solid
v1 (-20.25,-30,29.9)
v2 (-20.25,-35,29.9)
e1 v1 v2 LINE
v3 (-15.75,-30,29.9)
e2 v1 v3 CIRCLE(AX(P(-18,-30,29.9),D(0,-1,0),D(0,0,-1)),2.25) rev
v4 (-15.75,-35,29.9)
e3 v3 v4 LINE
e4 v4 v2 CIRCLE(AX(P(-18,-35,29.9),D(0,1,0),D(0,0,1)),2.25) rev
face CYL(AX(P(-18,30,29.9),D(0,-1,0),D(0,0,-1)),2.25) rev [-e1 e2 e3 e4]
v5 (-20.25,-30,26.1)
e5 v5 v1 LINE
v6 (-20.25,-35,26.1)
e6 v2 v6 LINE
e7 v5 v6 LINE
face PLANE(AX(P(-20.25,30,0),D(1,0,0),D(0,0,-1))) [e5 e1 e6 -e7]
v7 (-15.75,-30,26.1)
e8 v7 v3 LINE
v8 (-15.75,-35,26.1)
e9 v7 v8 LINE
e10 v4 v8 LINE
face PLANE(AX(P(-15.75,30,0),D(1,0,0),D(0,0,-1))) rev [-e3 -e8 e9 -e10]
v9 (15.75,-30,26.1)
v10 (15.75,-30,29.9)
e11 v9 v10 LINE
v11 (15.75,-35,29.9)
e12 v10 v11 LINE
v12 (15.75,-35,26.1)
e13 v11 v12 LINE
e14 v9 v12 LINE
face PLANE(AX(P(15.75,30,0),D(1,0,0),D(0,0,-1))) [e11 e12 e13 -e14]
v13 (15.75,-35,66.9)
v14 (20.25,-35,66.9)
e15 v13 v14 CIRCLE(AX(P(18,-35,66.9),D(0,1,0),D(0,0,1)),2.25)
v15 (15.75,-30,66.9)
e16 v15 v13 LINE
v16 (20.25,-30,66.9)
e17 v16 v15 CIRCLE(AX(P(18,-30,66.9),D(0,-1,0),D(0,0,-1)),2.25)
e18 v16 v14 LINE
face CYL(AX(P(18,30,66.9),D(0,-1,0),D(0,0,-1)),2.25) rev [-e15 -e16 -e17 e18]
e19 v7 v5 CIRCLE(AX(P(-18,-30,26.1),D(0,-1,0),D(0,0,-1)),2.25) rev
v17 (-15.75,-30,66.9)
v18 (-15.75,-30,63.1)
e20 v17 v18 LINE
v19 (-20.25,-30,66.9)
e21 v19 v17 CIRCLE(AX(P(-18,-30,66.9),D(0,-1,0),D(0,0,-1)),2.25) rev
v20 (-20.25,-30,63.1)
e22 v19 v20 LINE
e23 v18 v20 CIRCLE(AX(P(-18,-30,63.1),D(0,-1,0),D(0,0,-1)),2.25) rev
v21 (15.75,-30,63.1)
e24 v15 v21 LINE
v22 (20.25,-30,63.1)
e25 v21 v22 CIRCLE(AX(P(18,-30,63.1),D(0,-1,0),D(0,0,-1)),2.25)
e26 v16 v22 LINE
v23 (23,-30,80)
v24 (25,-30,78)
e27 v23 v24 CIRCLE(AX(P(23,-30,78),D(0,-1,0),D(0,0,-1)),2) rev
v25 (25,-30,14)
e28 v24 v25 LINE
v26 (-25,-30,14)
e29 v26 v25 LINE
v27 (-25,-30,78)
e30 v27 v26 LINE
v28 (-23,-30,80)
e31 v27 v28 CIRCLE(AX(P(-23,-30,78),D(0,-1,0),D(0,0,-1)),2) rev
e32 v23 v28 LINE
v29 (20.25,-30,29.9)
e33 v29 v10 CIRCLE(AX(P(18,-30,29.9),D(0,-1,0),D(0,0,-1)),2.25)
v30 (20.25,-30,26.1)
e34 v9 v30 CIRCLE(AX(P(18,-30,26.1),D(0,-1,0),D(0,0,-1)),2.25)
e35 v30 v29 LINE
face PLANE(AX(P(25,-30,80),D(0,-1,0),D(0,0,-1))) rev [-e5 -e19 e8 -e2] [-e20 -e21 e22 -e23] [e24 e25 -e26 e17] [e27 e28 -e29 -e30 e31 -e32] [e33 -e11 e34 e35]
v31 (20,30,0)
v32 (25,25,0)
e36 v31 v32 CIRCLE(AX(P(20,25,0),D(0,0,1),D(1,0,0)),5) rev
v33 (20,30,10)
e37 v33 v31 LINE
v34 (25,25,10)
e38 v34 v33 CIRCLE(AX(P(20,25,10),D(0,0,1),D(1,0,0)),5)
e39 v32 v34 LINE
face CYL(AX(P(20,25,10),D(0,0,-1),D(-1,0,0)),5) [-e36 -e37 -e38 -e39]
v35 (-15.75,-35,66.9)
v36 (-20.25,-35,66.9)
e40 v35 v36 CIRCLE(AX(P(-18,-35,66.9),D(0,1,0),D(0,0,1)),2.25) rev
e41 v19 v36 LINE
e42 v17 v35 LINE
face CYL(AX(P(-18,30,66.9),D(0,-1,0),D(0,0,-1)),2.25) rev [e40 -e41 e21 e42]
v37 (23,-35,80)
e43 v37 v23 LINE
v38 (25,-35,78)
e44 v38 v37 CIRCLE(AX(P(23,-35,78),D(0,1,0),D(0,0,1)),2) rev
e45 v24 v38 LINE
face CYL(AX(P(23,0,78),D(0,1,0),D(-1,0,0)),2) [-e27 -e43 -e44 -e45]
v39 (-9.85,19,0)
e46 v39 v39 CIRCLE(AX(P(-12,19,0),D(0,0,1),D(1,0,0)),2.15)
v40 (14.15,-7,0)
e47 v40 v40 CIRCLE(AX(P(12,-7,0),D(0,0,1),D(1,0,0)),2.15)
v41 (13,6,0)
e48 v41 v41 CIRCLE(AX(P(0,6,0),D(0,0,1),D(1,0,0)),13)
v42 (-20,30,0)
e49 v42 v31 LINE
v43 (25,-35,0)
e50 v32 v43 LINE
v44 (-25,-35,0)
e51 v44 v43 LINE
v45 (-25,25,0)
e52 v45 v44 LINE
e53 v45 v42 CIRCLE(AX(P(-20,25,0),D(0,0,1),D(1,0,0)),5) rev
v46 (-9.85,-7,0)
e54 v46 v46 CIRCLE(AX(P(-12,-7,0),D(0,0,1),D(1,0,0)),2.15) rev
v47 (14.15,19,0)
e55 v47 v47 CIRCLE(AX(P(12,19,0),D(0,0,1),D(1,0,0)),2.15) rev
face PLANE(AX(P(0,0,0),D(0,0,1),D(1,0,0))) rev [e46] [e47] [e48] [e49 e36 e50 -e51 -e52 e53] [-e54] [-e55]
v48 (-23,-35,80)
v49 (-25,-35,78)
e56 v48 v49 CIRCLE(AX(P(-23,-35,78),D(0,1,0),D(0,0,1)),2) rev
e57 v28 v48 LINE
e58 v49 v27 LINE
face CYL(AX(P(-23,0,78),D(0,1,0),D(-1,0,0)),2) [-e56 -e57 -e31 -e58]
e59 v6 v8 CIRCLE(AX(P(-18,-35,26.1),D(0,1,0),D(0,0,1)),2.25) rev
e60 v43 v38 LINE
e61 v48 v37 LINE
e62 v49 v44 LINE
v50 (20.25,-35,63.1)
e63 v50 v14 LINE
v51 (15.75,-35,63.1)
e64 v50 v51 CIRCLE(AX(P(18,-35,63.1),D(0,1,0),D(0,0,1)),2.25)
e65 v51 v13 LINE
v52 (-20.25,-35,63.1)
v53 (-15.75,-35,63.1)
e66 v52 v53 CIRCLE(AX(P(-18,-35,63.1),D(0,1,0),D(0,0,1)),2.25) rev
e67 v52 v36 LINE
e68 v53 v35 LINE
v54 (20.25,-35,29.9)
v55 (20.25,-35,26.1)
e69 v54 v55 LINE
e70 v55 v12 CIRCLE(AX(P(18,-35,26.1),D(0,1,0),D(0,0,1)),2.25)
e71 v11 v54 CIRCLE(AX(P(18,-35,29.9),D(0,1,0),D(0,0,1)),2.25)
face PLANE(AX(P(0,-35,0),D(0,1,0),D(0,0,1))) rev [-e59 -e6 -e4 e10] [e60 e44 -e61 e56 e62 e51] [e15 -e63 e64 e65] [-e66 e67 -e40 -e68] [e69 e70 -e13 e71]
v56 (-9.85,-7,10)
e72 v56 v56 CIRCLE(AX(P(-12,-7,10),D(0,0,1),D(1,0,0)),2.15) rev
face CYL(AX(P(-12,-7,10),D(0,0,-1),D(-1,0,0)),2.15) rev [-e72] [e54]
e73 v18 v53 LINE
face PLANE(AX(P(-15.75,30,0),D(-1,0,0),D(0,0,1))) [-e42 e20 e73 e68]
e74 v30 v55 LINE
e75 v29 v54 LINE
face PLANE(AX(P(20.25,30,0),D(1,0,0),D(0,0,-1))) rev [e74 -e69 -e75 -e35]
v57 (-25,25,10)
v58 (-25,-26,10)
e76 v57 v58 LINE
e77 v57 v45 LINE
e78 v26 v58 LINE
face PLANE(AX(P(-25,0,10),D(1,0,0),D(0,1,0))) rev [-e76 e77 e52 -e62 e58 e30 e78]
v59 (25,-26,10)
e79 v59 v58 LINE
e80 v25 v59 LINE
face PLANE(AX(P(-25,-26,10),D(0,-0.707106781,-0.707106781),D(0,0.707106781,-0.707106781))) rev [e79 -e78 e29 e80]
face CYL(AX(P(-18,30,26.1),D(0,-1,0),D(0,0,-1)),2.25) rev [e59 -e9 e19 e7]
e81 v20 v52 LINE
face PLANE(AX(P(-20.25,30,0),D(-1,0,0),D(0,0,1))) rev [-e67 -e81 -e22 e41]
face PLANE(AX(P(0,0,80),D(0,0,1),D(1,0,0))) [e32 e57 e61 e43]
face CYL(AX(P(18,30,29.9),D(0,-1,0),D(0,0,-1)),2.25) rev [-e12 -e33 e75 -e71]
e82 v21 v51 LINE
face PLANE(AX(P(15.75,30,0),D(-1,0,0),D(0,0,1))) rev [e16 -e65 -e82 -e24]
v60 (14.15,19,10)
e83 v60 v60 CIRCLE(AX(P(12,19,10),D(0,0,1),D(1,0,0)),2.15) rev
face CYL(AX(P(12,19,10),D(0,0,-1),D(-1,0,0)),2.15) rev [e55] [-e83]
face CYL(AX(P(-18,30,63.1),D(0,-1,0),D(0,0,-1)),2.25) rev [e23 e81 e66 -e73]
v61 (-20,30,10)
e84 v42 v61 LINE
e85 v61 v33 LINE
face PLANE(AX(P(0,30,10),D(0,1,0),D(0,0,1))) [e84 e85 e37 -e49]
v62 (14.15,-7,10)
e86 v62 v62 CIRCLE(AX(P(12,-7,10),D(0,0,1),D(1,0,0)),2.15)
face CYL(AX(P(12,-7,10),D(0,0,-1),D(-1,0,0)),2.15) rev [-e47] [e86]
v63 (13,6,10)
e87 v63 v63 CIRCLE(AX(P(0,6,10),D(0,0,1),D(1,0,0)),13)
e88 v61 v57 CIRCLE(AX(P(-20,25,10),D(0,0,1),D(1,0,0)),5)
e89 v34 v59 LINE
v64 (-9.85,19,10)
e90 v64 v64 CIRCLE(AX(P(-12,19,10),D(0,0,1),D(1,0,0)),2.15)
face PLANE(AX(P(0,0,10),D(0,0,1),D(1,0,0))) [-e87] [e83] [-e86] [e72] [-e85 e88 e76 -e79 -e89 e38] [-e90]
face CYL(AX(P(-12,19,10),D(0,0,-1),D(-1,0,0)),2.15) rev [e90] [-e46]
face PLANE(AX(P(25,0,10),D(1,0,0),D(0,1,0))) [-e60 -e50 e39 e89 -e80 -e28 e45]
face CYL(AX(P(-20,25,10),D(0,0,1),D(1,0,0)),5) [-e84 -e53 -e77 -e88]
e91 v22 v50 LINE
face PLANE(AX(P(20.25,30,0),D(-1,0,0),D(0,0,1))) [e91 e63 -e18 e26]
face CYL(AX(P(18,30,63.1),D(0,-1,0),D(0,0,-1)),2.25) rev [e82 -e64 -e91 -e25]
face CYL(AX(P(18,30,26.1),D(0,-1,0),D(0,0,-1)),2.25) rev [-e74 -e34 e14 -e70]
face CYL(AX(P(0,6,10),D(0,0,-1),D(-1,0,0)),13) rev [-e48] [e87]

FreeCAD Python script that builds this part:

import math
import FreeCAD as App
import Part
import Sketcher

V = App.Vector


def edges_at(feature, points):
    """Names of the edges that pass closest to the given points."""
    edges = feature.Shape.Edges
    near = lambda p: min(range(len(edges)), key=lambda i: edges[i].distToShape(Part.Vertex(*p))[0])
    return sorted({f"Edge{near(p) + 1}" for p in points})


def add_polygon(sketch, points):
    """Adds a closed chain of lines whose ends are joined by coincident constraints."""
    first, n = sketch.GeometryCount, len(points)
    for a, b in zip(points, points[1:] + points[:1]):
        sketch.addGeometry(Part.LineSegment(App.Vector(*a, 0), App.Vector(*b, 0)), False)
    for i in range(n):
        sketch.addConstraint(Sketcher.Constraint("Coincident", first + i, 2, first + (i + 1) % n, 1))

doc = App.newDocument("Part")
params = doc.addObject("Spreadsheet::Sheet", "Params")
for row, (alias, value) in enumerate([
    ("sketch1_radius", "13 mm"),
    ("sketch1_diameter", "4.3 mm"),
    ("sketch1_width", "50 mm"),
    ("sketch1_height", "60 mm"),
    ("pad1_length", "10 mm"),
    ("sketch2_width", "50 mm"),
    ("sketch2_height", "10 mm"),
    ("pad2_length", "5 mm"),
    ("sketch3_width", "50 mm"),
    ("sketch3_height", "5 mm"),
    ("pad3_length", "70 mm"),
    ("sketch4_radius", "2.25 mm"),
    ("sketch4_height", "3.8 mm"),
    ("fillet_radius", "5 mm"),
    ("fillet2_radius", "2 mm"),
    ("sketch5_width", "4 mm"),
    ("pad4_length", "4 mm"),
    ("sketch6_width", "4 mm"),
    ("pad5_length", "46 mm"),
    ("sketch7_width", "4 mm"),
], start=1):
    params.set(f"A{row}", alias)
    params.set(f"B{row}", "=" + value)
    params.setAlias(f"B{row}", alias)

body = doc.addObject("PartDesign::Body", "Body")

# Sketch on XY plane
sketch1 = body.newObject("Sketcher::SketchObject", "Sketch")
sketch1.AttachmentSupport = (doc.getObject("XY_Plane"), [""])
sketch1.MapMode = "FlatFace"
add_polygon(sketch1, [(25, 30), (-25, 30), (-25, -30), (25, -30)])  # lines 0-3
sketch1.addGeometry(Part.ArcOfCircle(Part.Circle(V(0, 6, 0), V(0, 0, 1), 13), math.radians(0), math.radians(90)), False)  # 4
sketch1.addGeometry(Part.ArcOfCircle(Part.Circle(V(0, 6, 0), V(0, 0, 1), 13), math.radians(180), math.radians(360)), False)  # 5
sketch1.addGeometry(Part.ArcOfCircle(Part.Circle(V(0, 6, 0), V(0, 0, 1), 13), math.radians(90), math.radians(180)), False)  # 6
sketch1.addGeometry(Part.Circle(V(12, 19, 0), V(0, 0, 1), 2.15), False)  # 7
sketch1.addGeometry(Part.Circle(V(12, -7, 0), V(0, 0, 1), 2.15), False)  # 8
sketch1.addGeometry(Part.Circle(V(-12, -7, 0), V(0, 0, 1), 2.15), False)  # 9
sketch1.addGeometry(Part.Circle(V(-12, 19, 0), V(0, 0, 1), 2.15), False)  # 10
sketch1.addConstraint([
    Sketcher.Constraint("Tangent", 4, 1, 5, 2),
    Sketcher.Constraint("Tangent", 5, 1, 6, 2),
    Sketcher.Constraint("Tangent", 6, 1, 4, 2),
    Sketcher.Constraint("Horizontal", 0),
    Sketcher.Constraint("Vertical", 1),
    Sketcher.Constraint("Horizontal", 2),
    Sketcher.Constraint("Vertical", 3),
    Sketcher.Constraint("Equal", 7, 8),
    Sketcher.Constraint("Equal", 8, 9),
    Sketcher.Constraint("Equal", 9, 10),
    Sketcher.Constraint("Symmetric", 0, 2, 2, 2, -1, 1),
    Sketcher.Constraint("Symmetric", 8, 3, 9, 3, -2),
    Sketcher.Constraint("Symmetric", 7, 3, 10, 3, -2),
    Sketcher.Constraint("Symmetric", 4, 1, 5, 1, -2),
    Sketcher.Constraint("PointOnObject", 6, 1, -2),
    Sketcher.Constraint("Horizontal", 6, 3, 4, 1),
    Sketcher.Constraint("Horizontal", 10, 3, 6, 1),
    Sketcher.Constraint("Vertical", 7, 3, 8, 3),
    Sketcher.Constraint("Radius", 4, 13.0),
    Sketcher.Constraint("Diameter", 7, 4.3),
    Sketcher.Constraint("DistanceX", 0, 2, 0, 1, 50.0),
    Sketcher.Constraint("DistanceY", 1, 2, 1, 1, 60.0),
    Sketcher.Constraint("DistanceY", -1, 1, 4, 3, 6.0),
    Sketcher.Constraint("DistanceX", -1, 1, 7, 3, 12.0),
    Sketcher.Constraint("DistanceY", 8, 3, -1, 1, 7.0),
])
sketch1.setExpression("Constraints[22]", "Params.sketch1_radius")
sketch1.setExpression("Constraints[23]", "Params.sketch1_diameter")
sketch1.setExpression("Constraints[24]", "Params.sketch1_width")
sketch1.setExpression("Constraints[25]", "Params.sketch1_height")
pad1 = body.newObject("PartDesign::Pad", "Pad")
pad1.Profile = sketch1
pad1.setExpression("Length", "Params.pad1_length")

# Sketch on XZ plane
sketch2 = body.newObject("Sketcher::SketchObject", "Sketch001")
sketch2.AttachmentSupport = (doc.getObject("XZ_Plane"), [""])
sketch2.MapMode = "FlatFace"
sketch2.AttachmentOffset = App.Placement(V(0, 0, 30), App.Rotation())
add_polygon(sketch2, [(-25, 10), (-25, 0), (25, 0), (25, 10)])  # lines 0-3
sketch2.addConstraint([
    Sketcher.Constraint("Vertical", 0),
    Sketcher.Constraint("Horizontal", 1),
    Sketcher.Constraint("Vertical", 2),
    Sketcher.Constraint("Horizontal", 3),
    Sketcher.Constraint("Symmetric", 0, 2, 1, 2, -1, 1),
    Sketcher.Constraint("DistanceX", 1, 1, 1, 2, 50.0),
    Sketcher.Constraint("DistanceY", 0, 2, 0, 1, 10.0),
])
sketch2.setExpression("Constraints[9]", "Params.sketch2_width")
sketch2.setExpression("Constraints[10]", "Params.sketch2_height")
pad2 = body.newObject("PartDesign::Pad", "Pad001")
pad2.Profile = sketch2
pad2.setExpression("Length", "Params.pad2_length")

# Sketch on XY plane
sketch3 = body.newObject("Sketcher::SketchObject", "Sketch002")
sketch3.AttachmentSupport = (doc.getObject("XY_Plane"), [""])
sketch3.MapMode = "FlatFace"
sketch3.AttachmentOffset = App.Placement(V(0, 0, 10), App.Rotation())
add_polygon(sketch3, [(-25, -30), (-25, -35), (25, -35), (25, -30)])  # lines 0-3
sketch3.addConstraint([
    Sketcher.Constraint("Vertical", 0),
    Sketcher.Constraint("Horizontal", 1),
    Sketcher.Constraint("Vertical", 2),
    Sketcher.Constraint("Horizontal", 3),
    Sketcher.Constraint("DistanceX", 1, 1, 1, 2, 50.0),
    Sketcher.Constraint("DistanceY", 0, 2, 0, 1, 5.0),
    Sketcher.Constraint("DistanceX", 0, 2, -1, 1, 25.0),
    Sketcher.Constraint("DistanceY", 0, 2, -1, 1, 35.0),
])
sketch3.setExpression("Constraints[8]", "Params.sketch3_width")
sketch3.setExpression("Constraints[9]", "Params.sketch3_height")
pad3 = body.newObject("PartDesign::Pad", "Pad002")
pad3.Profile = sketch3
pad3.setExpression("Length", "Params.pad3_length")

# Sketch on XZ plane
sketch4 = body.newObject("Sketcher::SketchObject", "Sketch003")
sketch4.AttachmentSupport = (doc.getObject("XZ_Plane"), [""])
sketch4.MapMode = "FlatFace"
sketch4.AttachmentOffset = App.Placement(V(0, 0, 30), App.Rotation())
sketch4.addGeometry([
    Part.LineSegment(V(-20.25, 63.1, 0), V(-20.25, 66.9, 0)),  # 0
    Part.ArcOfCircle(Part.Circle(V(-18, 66.9, 0), V(0, 0, 1), 2.25), math.radians(0), math.radians(180)),  # 1
    Part.LineSegment(V(-15.75, 66.9, 0), V(-15.75, 63.1, 0)),  # 2
    Part.ArcOfCircle(Part.Circle(V(-18, 63.1, 0), V(0, 0, 1), 2.25), math.radians(180), math.radians(360)),  # 3
    Part.LineSegment(V(-15.75, 29.9, 0), V(-15.75, 26.1, 0)),  # 4
    Part.ArcOfCircle(Part.Circle(V(-18, 26.1, 0), V(0, 0, 1), 2.25), math.radians(180), math.radians(360)),  # 5
    Part.LineSegment(V(-20.25, 26.1, 0), V(-20.25, 29.9, 0)),  # 6
    Part.ArcOfCircle(Part.Circle(V(-18, 29.9, 0), V(0, 0, 1), 2.25), math.radians(0), math.radians(180)),  # 7
    Part.LineSegment(V(20.25, 66.9, 0), V(20.25, 63.1, 0)),  # 8
    Part.ArcOfCircle(Part.Circle(V(18, 63.1, 0), V(0, 0, 1), 2.25), math.radians(180), math.radians(360)),  # 9
    Part.LineSegment(V(15.75, 63.1, 0), V(15.75, 66.9, 0)),  # 10
    Part.ArcOfCircle(Part.Circle(V(18, 66.9, 0), V(0, 0, 1), 2.25), math.radians(0), math.radians(180)),  # 11
    Part.LineSegment(V(15.75, 26.1, 0), V(15.75, 29.9, 0)),  # 12
    Part.ArcOfCircle(Part.Circle(V(18, 29.9, 0), V(0, 0, 1), 2.25), math.radians(0), math.radians(180)),  # 13
    Part.LineSegment(V(20.25, 29.9, 0), V(20.25, 26.1, 0)),  # 14
    Part.ArcOfCircle(Part.Circle(V(18, 26.1, 0), V(0, 0, 1), 2.25), math.radians(180), math.radians(360)),  # 15
], False)
sketch4.addConstraint([
    Sketcher.Constraint("Tangent", 0, 2, 1, 2),
    Sketcher.Constraint("Tangent", 1, 1, 2, 1),
    Sketcher.Constraint("Tangent", 2, 2, 3, 2),
    Sketcher.Constraint("Tangent", 3, 1, 0, 1),
    Sketcher.Constraint("Tangent", 4, 2, 5, 2),
    Sketcher.Constraint("Tangent", 5, 1, 6, 1),
    Sketcher.Constraint("Tangent", 6, 2, 7, 2),
    Sketcher.Constraint("Tangent", 7, 1, 4, 1),
    Sketcher.Constraint("Tangent", 8, 2, 9, 2),
    Sketcher.Constraint("Tangent", 9, 1, 10, 1),
    Sketcher.Constraint("Tangent", 10, 2, 11, 2),
    Sketcher.Constraint("Tangent", 11, 1, 8, 1),
    Sketcher.Constraint("Tangent", 12, 2, 13, 2),
    Sketcher.Constraint("Tangent", 13, 1, 14, 1),
    Sketcher.Constraint("Tangent", 14, 2, 15, 2),
    Sketcher.Constraint("Tangent", 15, 1, 12, 1),
    Sketcher.Constraint("Vertical", 0),
    Sketcher.Constraint("Vertical", 2),
    Sketcher.Constraint("Vertical", 4),
    Sketcher.Constraint("Vertical", 6),
    Sketcher.Constraint("Vertical", 8),
    Sketcher.Constraint("Vertical", 10),
    Sketcher.Constraint("Vertical", 12),
    Sketcher.Constraint("Vertical", 14),
    Sketcher.Constraint("Equal", 3, 5),
    Sketcher.Constraint("Equal", 7, 9),
    Sketcher.Constraint("Equal", 11, 13),
    Sketcher.Constraint("Symmetric", 3, 3, 9, 3, -2),
    Sketcher.Constraint("Symmetric", 7, 3, 13, 3, -2),
    Sketcher.Constraint("Horizontal", 1, 3, 11, 3),
    Sketcher.Constraint("Horizontal", 5, 3, 15, 3),
    Sketcher.Constraint("Vertical", 3, 3, 5, 3),
    Sketcher.Constraint("Equal", 2, 4),
    Sketcher.Constraint("Radius", 1, 2.25),
    Sketcher.Constraint("DistanceY", 0, 1, 0, 2, 3.8),
    Sketcher.Constraint("DistanceX", 1, 3, -1, 1, 18.0),
    Sketcher.Constraint("DistanceY", 5, 3, 3, 3, 37.0),
    Sketcher.Constraint("DistanceY", -1, 1, 1, 3, 66.9),
])
sketch4.setExpression("Constraints[33]", "Params.sketch4_radius")
sketch4.setExpression("Constraints[34]", "Params.sketch4_height")
pocket1 = body.newObject("PartDesign::Pocket", "Pocket")
pocket1.Profile = sketch4
pocket1.Type = "ThroughAll"
pocket1.Midplane = True
doc.recompute()

fillet = body.newObject("PartDesign::Fillet", "Fillet")
fillet.Base = (pocket1, edges_at(pocket1, [(-25, 30, 5), (25, 30, 5)]))
fillet.setExpression("Radius", "Params.fillet_radius")
doc.recompute()

fillet2 = body.newObject("PartDesign::Fillet", "Fillet001")
fillet2.Base = (fillet, edges_at(fillet, [(25, -32.5, 80), (-25, -32.5, 80)]))
fillet2.setExpression("Radius", "Params.fillet2_radius")

# Sketch on XZ plane
sketch5 = body.newObject("Sketcher::SketchObject", "Sketch004")
sketch5.AttachmentSupport = (doc.getObject("XZ_Plane"), [""])
sketch5.MapMode = "FlatFace"
sketch5.AttachmentOffset = App.Placement(V(0, 0, 30), App.Rotation())
add_polygon(sketch5, [(21, 10), (21, 14), (25, 14), (25, 10)])  # lines 0-3
sketch5.addConstraint([
    Sketcher.Constraint("Vertical", 0),
    Sketcher.Constraint("Horizontal", 1),
    Sketcher.Constraint("Vertical", 2),
    Sketcher.Constraint("Horizontal", 3),
    Sketcher.Constraint("Equal", 3, 0),
    Sketcher.Constraint("DistanceX", 1, 1, 1, 2, 4.0),
    Sketcher.Constraint("DistanceX", -1, 1, 0, 2, 21.0),
    Sketcher.Constraint("DistanceY", -1, 1, 0, 2, 14.0),
])
sketch5.setExpression("Constraints[9]", "Params.sketch5_width")
pad4 = body.newObject("PartDesign::Pad", "Pad003")
pad4.Profile = sketch5
pad4.setExpression("Length", "Params.pad4_length")
pad4.Reversed = True

# Sketch on YZ plane
sketch6 = body.newObject("Sketcher::SketchObject", "Sketch005")
sketch6.AttachmentSupport = (doc.getObject("YZ_Plane"), [""])
sketch6.MapMode = "FlatFace"
sketch6.AttachmentOffset = App.Placement(V(0, 0, 21), App.Rotation())
add_polygon(sketch6, [(-26, 10), (-30, 10), (-30, 14), (-26, 14)])  # lines 0-3
sketch6.addConstraint([
    Sketcher.Constraint("Horizontal", 0),
    Sketcher.Constraint("Vertical", 1),
    Sketcher.Constraint("Horizontal", 2),
    Sketcher.Constraint("Vertical", 3),
    Sketcher.Constraint("Equal", 2, 1),
    Sketcher.Constraint("DistanceX", 0, 2, 0, 1, 4.0),
    Sketcher.Constraint("DistanceX", 0, 2, -1, 1, 30.0),
    Sketcher.Constraint("DistanceY", -1, 1, 0, 2, 10.0),
])
sketch6.setExpression("Constraints[9]", "Params.sketch6_width")
pad5 = body.newObject("PartDesign::Pad", "Pad004")
pad5.Profile = sketch6
pad5.setExpression("Length", "Params.pad5_length")
pad5.Reversed = True

# Sketch on YZ plane
sketch7 = body.newObject("Sketcher::SketchObject", "Sketch006")
sketch7.AttachmentSupport = (doc.getObject("YZ_Plane"), [""])
sketch7.MapMode = "FlatFace"
sketch7.AttachmentOffset = App.Placement(V(0, 0, 25), App.Rotation())
add_polygon(sketch7, [(-30, 14), (-26, 10), (-26, 14)])  # lines 0-2
sketch7.addConstraint([
    Sketcher.Constraint("Vertical", 1),
    Sketcher.Constraint("Horizontal", 2),
    Sketcher.Constraint("Equal", 2, 1),
    Sketcher.Constraint("DistanceX", 2, 2, 2, 1, 4.0),
    Sketcher.Constraint("DistanceX", 0, 2, -1, 1, 26.0),
    Sketcher.Constraint("DistanceY", -1, 1, 0, 2, 10.0),
])
sketch7.setExpression("Constraints[6]", "Params.sketch7_width")
pocket2 = body.newObject("PartDesign::Pocket", "Pocket001")
pocket2.Profile = sketch7
pocket2.Type = "ThroughAll"

doc.recompute()
